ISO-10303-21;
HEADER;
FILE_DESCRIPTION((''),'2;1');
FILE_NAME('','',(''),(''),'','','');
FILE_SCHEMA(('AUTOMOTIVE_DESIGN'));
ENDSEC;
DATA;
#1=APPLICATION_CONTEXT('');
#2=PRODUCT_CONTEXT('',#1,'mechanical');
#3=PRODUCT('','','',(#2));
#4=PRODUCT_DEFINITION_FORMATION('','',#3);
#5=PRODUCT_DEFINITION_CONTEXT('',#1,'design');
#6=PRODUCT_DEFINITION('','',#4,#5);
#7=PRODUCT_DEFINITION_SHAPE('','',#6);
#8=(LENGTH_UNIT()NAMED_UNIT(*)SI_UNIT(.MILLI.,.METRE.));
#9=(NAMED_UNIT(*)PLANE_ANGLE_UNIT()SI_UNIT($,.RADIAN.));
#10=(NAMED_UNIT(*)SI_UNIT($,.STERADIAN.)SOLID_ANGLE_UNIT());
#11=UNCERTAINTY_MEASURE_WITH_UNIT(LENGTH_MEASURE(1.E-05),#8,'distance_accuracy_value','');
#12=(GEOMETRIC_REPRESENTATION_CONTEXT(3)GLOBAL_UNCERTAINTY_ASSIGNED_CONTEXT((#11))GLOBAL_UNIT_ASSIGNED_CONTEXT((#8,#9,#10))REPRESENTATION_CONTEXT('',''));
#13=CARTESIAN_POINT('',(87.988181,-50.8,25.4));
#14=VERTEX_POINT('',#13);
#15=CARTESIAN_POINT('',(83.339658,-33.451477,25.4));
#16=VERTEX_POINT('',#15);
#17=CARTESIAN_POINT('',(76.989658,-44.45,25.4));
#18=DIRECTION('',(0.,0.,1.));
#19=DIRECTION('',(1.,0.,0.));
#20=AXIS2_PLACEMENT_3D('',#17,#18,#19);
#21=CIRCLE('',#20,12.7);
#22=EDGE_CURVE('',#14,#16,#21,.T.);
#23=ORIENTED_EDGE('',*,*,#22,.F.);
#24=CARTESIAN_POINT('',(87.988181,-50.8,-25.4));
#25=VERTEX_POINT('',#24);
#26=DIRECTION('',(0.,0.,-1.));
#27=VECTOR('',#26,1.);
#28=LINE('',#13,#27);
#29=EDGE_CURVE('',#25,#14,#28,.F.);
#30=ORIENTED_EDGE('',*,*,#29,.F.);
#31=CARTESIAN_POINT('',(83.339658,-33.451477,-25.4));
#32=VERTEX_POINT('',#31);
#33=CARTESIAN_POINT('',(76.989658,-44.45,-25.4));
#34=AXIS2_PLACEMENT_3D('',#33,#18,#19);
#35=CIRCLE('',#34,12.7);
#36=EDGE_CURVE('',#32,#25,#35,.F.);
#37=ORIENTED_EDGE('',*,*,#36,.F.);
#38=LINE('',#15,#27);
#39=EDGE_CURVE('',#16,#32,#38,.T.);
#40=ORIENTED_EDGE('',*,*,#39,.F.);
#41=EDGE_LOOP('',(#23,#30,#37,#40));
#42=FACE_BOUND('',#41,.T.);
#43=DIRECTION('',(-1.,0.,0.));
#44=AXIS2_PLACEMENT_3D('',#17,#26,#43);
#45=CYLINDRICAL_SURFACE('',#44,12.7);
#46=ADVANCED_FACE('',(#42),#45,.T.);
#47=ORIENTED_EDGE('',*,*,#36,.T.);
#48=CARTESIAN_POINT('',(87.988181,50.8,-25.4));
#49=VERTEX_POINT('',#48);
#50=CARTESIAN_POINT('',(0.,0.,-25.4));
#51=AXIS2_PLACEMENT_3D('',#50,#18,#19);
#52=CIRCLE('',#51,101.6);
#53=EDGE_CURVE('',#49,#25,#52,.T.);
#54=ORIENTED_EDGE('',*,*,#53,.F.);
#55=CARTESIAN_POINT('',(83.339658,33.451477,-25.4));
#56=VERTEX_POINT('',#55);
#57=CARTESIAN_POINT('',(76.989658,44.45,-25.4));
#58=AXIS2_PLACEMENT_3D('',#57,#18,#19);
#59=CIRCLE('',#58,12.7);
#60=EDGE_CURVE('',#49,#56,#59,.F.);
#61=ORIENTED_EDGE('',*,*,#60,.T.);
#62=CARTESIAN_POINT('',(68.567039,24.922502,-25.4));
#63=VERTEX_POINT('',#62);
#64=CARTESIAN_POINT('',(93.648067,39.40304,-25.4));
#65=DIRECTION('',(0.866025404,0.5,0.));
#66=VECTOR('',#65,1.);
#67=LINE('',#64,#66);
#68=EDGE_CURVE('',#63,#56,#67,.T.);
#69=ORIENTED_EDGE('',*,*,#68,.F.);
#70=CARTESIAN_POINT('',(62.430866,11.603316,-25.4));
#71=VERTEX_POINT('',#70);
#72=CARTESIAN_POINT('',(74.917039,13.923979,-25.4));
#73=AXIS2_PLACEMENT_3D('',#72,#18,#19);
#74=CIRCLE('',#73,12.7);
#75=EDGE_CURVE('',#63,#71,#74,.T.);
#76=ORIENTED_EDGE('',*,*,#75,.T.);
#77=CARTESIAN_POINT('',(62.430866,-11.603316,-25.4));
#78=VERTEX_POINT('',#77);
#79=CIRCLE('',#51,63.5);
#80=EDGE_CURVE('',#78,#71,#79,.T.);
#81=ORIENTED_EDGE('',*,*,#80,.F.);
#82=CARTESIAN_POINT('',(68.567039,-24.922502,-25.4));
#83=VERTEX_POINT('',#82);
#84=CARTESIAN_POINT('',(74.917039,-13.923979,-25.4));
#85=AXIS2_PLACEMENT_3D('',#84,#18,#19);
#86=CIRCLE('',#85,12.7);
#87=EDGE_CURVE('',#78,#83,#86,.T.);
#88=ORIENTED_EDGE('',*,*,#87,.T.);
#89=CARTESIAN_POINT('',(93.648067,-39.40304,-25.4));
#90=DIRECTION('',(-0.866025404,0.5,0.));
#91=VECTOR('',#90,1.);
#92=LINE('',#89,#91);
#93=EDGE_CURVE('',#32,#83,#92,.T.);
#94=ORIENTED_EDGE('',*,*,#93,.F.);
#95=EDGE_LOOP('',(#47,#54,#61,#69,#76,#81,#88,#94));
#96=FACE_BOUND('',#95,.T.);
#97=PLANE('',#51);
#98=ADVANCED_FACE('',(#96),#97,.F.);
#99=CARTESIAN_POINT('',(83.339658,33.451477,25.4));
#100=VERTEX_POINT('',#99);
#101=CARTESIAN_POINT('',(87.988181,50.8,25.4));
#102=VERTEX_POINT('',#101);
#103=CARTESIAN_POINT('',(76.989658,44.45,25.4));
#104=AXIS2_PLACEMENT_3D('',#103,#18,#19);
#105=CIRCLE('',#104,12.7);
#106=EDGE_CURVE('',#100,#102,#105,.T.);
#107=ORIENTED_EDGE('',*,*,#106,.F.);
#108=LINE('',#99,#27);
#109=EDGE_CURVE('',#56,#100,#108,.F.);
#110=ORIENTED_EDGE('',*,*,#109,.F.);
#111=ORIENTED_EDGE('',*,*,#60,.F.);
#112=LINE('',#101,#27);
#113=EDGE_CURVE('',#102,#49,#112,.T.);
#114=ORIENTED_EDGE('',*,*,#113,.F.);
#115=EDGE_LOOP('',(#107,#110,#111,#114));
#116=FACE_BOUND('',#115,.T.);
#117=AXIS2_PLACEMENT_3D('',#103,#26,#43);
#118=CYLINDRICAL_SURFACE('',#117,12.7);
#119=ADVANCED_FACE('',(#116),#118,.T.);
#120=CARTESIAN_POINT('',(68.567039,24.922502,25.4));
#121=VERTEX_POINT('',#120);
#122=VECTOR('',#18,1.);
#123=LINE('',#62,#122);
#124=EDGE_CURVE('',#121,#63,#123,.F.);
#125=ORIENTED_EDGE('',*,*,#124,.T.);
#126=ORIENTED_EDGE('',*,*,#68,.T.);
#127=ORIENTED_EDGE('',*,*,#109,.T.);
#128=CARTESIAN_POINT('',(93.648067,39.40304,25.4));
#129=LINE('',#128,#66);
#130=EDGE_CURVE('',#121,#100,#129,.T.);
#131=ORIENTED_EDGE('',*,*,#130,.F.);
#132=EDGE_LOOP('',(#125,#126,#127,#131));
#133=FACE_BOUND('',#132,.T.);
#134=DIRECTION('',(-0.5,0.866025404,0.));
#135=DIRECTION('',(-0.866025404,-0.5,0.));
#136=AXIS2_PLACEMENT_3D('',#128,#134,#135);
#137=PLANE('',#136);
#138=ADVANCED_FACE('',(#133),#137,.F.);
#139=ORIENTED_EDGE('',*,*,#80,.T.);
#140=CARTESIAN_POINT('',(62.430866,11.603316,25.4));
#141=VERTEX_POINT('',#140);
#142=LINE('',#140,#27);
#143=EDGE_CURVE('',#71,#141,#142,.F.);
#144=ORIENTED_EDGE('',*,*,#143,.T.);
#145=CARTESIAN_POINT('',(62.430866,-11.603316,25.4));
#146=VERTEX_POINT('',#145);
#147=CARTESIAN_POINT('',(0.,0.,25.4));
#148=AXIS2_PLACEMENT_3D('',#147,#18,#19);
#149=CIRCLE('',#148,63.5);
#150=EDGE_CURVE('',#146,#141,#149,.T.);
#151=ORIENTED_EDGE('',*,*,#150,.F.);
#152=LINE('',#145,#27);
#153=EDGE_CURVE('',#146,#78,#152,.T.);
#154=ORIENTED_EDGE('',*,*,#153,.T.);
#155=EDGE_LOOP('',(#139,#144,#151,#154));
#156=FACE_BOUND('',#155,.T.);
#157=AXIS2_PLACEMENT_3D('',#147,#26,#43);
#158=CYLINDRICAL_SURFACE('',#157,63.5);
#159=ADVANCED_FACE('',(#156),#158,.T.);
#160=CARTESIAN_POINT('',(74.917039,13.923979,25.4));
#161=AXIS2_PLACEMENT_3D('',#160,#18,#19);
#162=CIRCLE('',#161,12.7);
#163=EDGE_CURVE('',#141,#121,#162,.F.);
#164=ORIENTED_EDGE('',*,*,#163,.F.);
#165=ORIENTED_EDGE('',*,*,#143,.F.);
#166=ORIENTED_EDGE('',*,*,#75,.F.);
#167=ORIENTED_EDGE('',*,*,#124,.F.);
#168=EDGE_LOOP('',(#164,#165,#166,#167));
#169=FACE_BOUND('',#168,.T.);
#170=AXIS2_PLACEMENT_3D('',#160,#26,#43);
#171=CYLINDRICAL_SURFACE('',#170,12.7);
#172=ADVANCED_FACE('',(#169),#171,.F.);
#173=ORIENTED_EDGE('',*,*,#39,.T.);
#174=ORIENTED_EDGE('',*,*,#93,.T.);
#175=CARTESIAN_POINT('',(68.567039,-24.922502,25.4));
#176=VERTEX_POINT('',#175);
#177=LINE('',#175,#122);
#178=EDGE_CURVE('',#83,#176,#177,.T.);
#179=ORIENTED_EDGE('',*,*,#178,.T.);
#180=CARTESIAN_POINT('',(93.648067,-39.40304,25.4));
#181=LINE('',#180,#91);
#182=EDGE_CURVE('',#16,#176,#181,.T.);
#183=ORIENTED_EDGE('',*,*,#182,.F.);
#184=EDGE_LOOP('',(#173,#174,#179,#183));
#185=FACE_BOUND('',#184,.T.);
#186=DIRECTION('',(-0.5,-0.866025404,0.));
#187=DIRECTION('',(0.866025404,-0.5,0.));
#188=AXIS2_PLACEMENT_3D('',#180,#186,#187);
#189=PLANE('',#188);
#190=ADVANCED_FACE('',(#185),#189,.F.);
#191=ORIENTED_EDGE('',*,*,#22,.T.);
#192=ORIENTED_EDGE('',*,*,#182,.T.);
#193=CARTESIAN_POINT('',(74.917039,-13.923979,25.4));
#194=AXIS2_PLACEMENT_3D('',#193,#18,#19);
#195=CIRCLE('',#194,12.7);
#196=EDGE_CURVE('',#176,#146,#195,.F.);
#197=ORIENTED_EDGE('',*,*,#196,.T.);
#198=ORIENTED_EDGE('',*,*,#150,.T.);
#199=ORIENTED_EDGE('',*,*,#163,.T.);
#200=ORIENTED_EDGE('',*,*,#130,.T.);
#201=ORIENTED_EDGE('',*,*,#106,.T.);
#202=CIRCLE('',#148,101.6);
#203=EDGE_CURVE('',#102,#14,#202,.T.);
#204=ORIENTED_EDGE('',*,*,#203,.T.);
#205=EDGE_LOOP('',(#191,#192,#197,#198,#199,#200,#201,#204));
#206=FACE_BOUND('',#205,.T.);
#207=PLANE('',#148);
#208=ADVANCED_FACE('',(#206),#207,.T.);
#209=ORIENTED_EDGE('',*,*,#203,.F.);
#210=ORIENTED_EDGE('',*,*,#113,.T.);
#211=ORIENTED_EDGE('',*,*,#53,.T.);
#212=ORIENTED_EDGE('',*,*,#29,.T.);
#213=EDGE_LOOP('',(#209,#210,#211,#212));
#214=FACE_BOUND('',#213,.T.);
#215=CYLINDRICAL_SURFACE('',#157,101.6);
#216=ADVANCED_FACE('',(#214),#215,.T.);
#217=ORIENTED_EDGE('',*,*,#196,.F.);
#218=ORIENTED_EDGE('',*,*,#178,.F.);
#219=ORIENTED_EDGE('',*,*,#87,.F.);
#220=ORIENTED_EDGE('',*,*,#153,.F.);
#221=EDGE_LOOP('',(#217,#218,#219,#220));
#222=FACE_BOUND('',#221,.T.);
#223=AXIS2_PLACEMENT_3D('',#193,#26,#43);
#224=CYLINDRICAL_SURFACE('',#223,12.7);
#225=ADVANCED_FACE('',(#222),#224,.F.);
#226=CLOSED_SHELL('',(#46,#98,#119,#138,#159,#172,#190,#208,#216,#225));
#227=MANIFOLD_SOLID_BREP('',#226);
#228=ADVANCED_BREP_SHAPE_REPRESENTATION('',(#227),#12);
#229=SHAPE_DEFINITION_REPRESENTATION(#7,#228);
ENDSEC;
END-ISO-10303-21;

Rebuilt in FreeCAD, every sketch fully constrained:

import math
import FreeCAD as App
import Part
import Sketcher

V = App.Vector
Q = App.Units.Quantity


def edges_at(feature, points):
    """Names of the edges that pass closest to the given points."""
    edges = feature.Shape.Edges
    near = lambda p: min(range(len(edges)), key=lambda i: edges[i].distToShape(Part.Vertex(*p))[0])
    return sorted({f"Edge{near(p) + 1}" for p in points})

doc = App.newDocument("Part")
body = doc.addObject("PartDesign::Body", "Body")

sketch1 = doc.addObject("Sketcher::SketchObject", "Sketch")
body.addObject(sketch1)
sketch1.AttachmentSupport = (doc.XY_Plane, [""])
sketch1.MapMode = "FlatFace"
sketch1.addGeometry([
    Part.LineSegment(V(94, -39, 0), V(60, -20, 0)),
    Part.ArcOfCircle(Part.Circle(V(0, 0, 0), V(0, 0, 1), 63), math.radians(-18), math.radians(18)),
    Part.LineSegment(V(60, 20, 0), V(94, 39, 0)),
    Part.ArcOfCircle(Part.Circle(V(0, 0, 0), V(0, 0, 1), 102), math.radians(23), math.radians(337)),
], False)
sketch1.addConstraint([
    Sketcher.Constraint("Coincident", 0, 2, 1, 1),
    Sketcher.Constraint("Coincident", 1, 2, 2, 1),
    Sketcher.Constraint("Coincident", 2, 2, 3, 1),
    Sketcher.Constraint("Coincident", 3, 2, 0, 1),
    Sketcher.Constraint("Coincident", 1, 3, -1, 1),
    Sketcher.Constraint("Coincident", 3, 3, -1, 1),
    Sketcher.Constraint("Vertical", 0, 2, 1, 2),
    Sketcher.Constraint("Vertical", 2, 2, 3, 2),
    Sketcher.Constraint("Radius", 3, Q("4 in")),
    Sketcher.Constraint("Radius", 1, Q("2.5 in")),
    Sketcher.Constraint("Angle", 0, Q("150 deg")),
    Sketcher.Constraint("DistanceY", -1, 1, 2, 2, Q("39.40304 mm")),
])
pad1 = doc.addObject("PartDesign::Pad", "Pad")
body.addObject(pad1)
pad1.Profile = sketch1
pad1.Length = Q("2 in")
pad1.Midplane = True
doc.recompute()

fillet = doc.addObject("PartDesign::Fillet", "Fillet")
body.addObject(fillet)
fillet.Base = (pad1, edges_at(pad1, [
    (60.232, -20.11, 0),
    (93.648, -39.403, 0),
    (93.648, 39.403, 0),
    (60.232, 20.11, 0),
]))
fillet.Radius = Q("0.5 in")

doc.recompute()
